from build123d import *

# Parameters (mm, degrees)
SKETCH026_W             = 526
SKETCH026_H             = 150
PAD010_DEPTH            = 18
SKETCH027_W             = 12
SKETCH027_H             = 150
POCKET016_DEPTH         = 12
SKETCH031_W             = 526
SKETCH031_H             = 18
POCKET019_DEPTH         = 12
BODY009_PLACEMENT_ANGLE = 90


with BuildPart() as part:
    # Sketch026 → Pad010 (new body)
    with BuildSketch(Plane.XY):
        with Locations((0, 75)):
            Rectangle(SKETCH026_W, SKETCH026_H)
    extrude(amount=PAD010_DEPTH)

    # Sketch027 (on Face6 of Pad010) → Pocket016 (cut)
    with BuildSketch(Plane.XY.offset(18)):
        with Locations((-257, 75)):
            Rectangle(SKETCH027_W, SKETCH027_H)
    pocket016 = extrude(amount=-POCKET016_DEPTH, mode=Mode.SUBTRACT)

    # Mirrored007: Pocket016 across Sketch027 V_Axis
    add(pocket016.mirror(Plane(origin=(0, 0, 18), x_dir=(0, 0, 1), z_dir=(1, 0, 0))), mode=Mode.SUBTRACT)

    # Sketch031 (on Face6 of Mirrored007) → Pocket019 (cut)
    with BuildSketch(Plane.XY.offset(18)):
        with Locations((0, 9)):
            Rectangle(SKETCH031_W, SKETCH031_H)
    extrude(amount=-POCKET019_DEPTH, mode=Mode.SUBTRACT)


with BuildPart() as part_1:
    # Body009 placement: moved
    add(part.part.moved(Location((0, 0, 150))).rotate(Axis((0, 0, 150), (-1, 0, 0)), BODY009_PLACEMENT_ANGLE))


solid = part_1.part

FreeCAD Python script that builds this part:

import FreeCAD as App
import Part
import Sketcher

V = App.Vector
Q = App.Units.Quantity


def add_polygon(sketch, points):
    """Adds a closed chain of lines whose ends are joined by coincident constraints."""
    first, n = sketch.GeometryCount, len(points)
    for a, b in zip(points, points[1:] + points[:1]):
        sketch.addGeometry(Part.LineSegment(App.Vector(*a, 0), App.Vector(*b, 0)), False)
    for i in range(n):
        sketch.addConstraint(Sketcher.Constraint("Coincident", first + i, 2, first + (i + 1) % n, 1))

doc = App.newDocument("Part")
body = doc.addObject("PartDesign::Body", "Body")

# Sketch on XY plane
sketch1 = body.newObject("Sketcher::SketchObject", "Sketch")
sketch1.AttachmentSupport = (doc.getObject("XY_Plane"), [""])
sketch1.MapMode = "FlatFace"
add_polygon(sketch1, [(-263, 150), (-263, 0), (263, 0), (263, 150)])  # lines 0-3
sketch1.addConstraint(Sketcher.Constraint("Vertical", 0))
sketch1.addConstraint(Sketcher.Constraint("Horizontal", 1))
sketch1.addConstraint(Sketcher.Constraint("Vertical", 2))
sketch1.addConstraint(Sketcher.Constraint("Horizontal", 3))
sketch1.addConstraint(Sketcher.Constraint("Symmetric", 0, 2, 1, 2, -1, 1))
sketch1.addConstraint(Sketcher.Constraint("DistanceX", 1, 1, 1, 2, Q("526 mm")))
sketch1.addConstraint(Sketcher.Constraint("DistanceY", 0, 2, 0, 1, Q("150 mm")))
pad1 = body.newObject("PartDesign::Pad", "Pad")
pad1.Profile = sketch1
pad1.Length = 18

# Sketch on XY plane
sketch2 = body.newObject("Sketcher::SketchObject", "Sketch001")
sketch2.AttachmentSupport = (doc.getObject("XY_Plane"), [""])
sketch2.MapMode = "FlatFace"
sketch2.AttachmentOffset = App.Placement(V(0, 0, 18), App.Rotation())
add_polygon(sketch2, [(-263, 150), (-263, 0), (-251, 0), (-251, 150)])  # lines 0-3
sketch2.addConstraint(Sketcher.Constraint("Vertical", 0))
sketch2.addConstraint(Sketcher.Constraint("Horizontal", 1))
sketch2.addConstraint(Sketcher.Constraint("Vertical", 2))
sketch2.addConstraint(Sketcher.Constraint("Horizontal", 3))
sketch2.addConstraint(Sketcher.Constraint("PointOnObject", 0, 2, -1))
sketch2.addConstraint(Sketcher.Constraint("DistanceX", 1, 1, 1, 2, Q("12 mm")))
sketch2.addConstraint(Sketcher.Constraint("DistanceY", 0, 2, 0, 1, Q("150 mm")))
sketch2.addConstraint(Sketcher.Constraint("DistanceX", 0, 2, -1, 1, Q("263 mm")))
pocket1 = body.newObject("PartDesign::Pocket", "Pocket")
pocket1.Profile = sketch2
pocket1.Length = 12
doc.recompute()

mirrored = body.newObject("PartDesign::Mirrored", "Mirrored")
mirrored.Originals = [pocket1]
mirrored.MirrorPlane = (doc.getObject("YZ_Plane"), [""])
body.Tip = mirrored

# Sketch on XY plane
sketch3 = body.newObject("Sketcher::SketchObject", "Sketch002")
sketch3.AttachmentSupport = (doc.getObject("XY_Plane"), [""])
sketch3.MapMode = "FlatFace"
sketch3.AttachmentOffset = App.Placement(V(0, 0, 18), App.Rotation())
add_polygon(sketch3, [(-263, 18), (-263, 0), (263, 0), (263, 18)])  # lines 0-3
sketch3.addConstraint(Sketcher.Constraint("Vertical", 0))
sketch3.addConstraint(Sketcher.Constraint("Horizontal", 1))
sketch3.addConstraint(Sketcher.Constraint("Vertical", 2))
sketch3.addConstraint(Sketcher.Constraint("Horizontal", 3))
sketch3.addConstraint(Sketcher.Constraint("Symmetric", 0, 2, 1, 2, -1, 1))
sketch3.addConstraint(Sketcher.Constraint("DistanceX", 1, 1, 1, 2, Q("526 mm")))
sketch3.addConstraint(Sketcher.Constraint("DistanceY", 0, 2, 0, 1, Q("18 mm")))
pocket2 = body.newObject("PartDesign::Pocket", "Pocket001")
pocket2.Profile = sketch3
pocket2.Length = 12
body2 = doc.addObject("PartDesign::Body", "Body001")
doc.recompute()

body.Placement = App.Placement(V(0, 0, 150), App.Rotation(V(-1, 0, 0), 90))
boolean = body2.newObject("PartDesign::Boolean", "Boolean")
boolean.Type = "Fuse"
boolean.addObjects([body])

doc.recompute()
